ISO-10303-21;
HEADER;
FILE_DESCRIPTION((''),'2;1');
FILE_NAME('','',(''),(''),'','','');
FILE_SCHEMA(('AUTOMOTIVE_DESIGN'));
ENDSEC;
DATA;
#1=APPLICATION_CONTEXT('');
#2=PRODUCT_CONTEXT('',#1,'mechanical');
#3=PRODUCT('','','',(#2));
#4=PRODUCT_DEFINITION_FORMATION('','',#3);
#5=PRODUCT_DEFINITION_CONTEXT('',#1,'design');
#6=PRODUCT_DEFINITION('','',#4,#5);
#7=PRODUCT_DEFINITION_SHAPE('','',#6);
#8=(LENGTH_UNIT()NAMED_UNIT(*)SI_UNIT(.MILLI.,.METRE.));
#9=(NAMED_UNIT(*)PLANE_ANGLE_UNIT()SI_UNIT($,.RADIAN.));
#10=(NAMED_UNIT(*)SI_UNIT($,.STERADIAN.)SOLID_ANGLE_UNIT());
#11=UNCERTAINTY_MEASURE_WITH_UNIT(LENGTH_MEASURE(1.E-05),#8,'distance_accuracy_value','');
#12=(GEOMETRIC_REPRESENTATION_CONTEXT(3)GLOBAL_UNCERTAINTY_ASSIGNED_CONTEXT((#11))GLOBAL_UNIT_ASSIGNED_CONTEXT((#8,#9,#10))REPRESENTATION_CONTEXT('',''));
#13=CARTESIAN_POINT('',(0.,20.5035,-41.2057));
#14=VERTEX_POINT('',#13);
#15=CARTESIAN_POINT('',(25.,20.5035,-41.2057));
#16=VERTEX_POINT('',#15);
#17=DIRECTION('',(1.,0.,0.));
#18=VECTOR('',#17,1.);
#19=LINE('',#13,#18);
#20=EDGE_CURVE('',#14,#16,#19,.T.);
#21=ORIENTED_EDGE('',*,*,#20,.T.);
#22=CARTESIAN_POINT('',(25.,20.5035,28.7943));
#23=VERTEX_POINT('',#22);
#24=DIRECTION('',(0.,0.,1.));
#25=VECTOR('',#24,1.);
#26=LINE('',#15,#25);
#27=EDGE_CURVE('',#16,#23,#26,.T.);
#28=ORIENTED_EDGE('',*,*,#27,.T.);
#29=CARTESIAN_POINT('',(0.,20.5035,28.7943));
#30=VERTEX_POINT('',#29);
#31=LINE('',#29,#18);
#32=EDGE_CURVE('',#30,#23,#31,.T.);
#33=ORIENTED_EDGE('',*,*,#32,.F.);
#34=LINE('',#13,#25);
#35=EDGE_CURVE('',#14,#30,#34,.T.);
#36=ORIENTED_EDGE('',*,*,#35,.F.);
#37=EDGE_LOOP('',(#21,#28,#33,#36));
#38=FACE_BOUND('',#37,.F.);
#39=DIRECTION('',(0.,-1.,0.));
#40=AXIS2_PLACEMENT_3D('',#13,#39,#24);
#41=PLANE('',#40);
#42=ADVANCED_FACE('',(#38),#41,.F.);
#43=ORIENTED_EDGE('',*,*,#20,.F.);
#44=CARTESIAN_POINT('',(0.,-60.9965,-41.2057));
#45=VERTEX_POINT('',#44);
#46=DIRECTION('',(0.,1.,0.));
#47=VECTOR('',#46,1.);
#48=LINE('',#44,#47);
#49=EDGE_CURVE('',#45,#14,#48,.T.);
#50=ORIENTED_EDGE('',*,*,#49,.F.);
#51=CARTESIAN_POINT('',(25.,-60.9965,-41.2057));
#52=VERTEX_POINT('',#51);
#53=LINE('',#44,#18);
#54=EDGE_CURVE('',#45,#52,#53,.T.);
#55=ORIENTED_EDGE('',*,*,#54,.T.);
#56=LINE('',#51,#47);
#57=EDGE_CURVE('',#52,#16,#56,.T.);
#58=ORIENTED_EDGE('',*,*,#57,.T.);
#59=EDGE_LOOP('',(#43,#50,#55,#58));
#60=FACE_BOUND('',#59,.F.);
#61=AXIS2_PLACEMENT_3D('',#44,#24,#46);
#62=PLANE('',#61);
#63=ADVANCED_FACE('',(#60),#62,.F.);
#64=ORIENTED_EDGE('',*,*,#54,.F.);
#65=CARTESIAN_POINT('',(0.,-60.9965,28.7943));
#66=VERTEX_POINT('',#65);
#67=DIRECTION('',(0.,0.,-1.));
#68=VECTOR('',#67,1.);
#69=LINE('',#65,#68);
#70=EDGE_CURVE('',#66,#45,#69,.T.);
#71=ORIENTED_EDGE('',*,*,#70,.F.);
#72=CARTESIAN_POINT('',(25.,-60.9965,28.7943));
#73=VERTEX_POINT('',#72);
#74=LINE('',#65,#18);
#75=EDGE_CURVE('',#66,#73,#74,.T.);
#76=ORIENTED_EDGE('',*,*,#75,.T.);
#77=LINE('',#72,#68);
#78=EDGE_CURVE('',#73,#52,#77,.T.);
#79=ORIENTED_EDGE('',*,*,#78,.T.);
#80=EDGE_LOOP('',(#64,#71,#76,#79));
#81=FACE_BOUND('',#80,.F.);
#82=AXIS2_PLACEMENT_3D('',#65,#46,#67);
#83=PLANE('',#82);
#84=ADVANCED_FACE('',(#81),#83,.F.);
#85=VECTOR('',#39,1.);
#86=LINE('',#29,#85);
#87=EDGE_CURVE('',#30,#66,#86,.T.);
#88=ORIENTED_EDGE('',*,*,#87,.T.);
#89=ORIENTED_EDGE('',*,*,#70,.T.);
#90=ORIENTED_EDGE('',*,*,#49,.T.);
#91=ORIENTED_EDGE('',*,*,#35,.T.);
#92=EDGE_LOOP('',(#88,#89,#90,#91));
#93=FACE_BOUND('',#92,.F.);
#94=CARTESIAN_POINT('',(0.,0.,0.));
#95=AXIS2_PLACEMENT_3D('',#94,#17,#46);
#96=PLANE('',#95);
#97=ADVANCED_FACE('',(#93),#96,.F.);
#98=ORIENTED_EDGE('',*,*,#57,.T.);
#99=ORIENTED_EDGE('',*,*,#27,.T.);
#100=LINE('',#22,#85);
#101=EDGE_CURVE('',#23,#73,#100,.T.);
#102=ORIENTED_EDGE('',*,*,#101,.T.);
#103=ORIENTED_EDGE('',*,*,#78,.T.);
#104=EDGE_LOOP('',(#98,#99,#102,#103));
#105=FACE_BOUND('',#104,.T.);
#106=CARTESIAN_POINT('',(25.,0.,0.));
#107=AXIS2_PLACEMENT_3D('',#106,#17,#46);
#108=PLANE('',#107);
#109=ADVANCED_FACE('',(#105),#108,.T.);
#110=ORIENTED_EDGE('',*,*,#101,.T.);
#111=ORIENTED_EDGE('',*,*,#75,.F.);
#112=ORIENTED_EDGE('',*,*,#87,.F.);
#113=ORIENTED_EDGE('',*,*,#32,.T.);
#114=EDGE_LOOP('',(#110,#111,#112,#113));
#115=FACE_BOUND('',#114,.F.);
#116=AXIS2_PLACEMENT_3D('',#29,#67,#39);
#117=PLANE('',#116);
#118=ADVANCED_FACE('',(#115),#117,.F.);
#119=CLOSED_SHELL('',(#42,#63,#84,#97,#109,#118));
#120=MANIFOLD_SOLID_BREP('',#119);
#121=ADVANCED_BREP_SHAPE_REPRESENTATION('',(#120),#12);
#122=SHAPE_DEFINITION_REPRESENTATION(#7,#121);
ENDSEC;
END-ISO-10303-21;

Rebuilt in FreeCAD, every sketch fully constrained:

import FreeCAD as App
import Part
import Sketcher
from FreeCAD import Vector
Q = App.Units.Quantity


def add_polygon(sketch, points):
    """Adds a closed chain of lines whose ends are joined by coincident constraints."""
    first, n = sketch.GeometryCount, len(points)
    for a, b in zip(points, points[1:] + points[:1]):
        sketch.addGeometry(Part.LineSegment(App.Vector(*a, 0), App.Vector(*b, 0)), False)
    for i in range(n):
        sketch.addConstraint(Sketcher.Constraint("Coincident", first + i, 2, first + (i + 1) % n, 1))

doc = App.newDocument("Part")
body = doc.addObject("PartDesign::Body", "Body")

sketch1 = body.newObject("Sketcher::SketchObject", "Sketch")
sketch1.AttachmentSupport = (doc.getObject("YZ_Plane"), [""])
sketch1.MapMode = "FlatFace"
add_polygon(sketch1, [(21, -41), (21, 29), (-61, 29), (-61, -41)])
sketch1.addConstraint([
    Sketcher.Constraint("Vertical", 0),
    Sketcher.Constraint("Horizontal", 1),
    Sketcher.Constraint("Vertical", 2),
    Sketcher.Constraint("Horizontal", 3),
    Sketcher.Constraint("DistanceY", 0, 1, 0, 2, Q("70 mm")),
    Sketcher.Constraint("DistanceX", 1, 2, 1, 1, Q("81.5 mm")),
    Sketcher.Constraint("DistanceX", -1, 1, 0, 2, Q("20.5035 mm")),
    Sketcher.Constraint("DistanceY", -1, 1, 0, 2, Q("28.7943 mm")),
])
pad1 = body.newObject("PartDesign::Pad", "Pad")
pad1.Profile = sketch1
pad1.Length = 25

doc.recompute()
